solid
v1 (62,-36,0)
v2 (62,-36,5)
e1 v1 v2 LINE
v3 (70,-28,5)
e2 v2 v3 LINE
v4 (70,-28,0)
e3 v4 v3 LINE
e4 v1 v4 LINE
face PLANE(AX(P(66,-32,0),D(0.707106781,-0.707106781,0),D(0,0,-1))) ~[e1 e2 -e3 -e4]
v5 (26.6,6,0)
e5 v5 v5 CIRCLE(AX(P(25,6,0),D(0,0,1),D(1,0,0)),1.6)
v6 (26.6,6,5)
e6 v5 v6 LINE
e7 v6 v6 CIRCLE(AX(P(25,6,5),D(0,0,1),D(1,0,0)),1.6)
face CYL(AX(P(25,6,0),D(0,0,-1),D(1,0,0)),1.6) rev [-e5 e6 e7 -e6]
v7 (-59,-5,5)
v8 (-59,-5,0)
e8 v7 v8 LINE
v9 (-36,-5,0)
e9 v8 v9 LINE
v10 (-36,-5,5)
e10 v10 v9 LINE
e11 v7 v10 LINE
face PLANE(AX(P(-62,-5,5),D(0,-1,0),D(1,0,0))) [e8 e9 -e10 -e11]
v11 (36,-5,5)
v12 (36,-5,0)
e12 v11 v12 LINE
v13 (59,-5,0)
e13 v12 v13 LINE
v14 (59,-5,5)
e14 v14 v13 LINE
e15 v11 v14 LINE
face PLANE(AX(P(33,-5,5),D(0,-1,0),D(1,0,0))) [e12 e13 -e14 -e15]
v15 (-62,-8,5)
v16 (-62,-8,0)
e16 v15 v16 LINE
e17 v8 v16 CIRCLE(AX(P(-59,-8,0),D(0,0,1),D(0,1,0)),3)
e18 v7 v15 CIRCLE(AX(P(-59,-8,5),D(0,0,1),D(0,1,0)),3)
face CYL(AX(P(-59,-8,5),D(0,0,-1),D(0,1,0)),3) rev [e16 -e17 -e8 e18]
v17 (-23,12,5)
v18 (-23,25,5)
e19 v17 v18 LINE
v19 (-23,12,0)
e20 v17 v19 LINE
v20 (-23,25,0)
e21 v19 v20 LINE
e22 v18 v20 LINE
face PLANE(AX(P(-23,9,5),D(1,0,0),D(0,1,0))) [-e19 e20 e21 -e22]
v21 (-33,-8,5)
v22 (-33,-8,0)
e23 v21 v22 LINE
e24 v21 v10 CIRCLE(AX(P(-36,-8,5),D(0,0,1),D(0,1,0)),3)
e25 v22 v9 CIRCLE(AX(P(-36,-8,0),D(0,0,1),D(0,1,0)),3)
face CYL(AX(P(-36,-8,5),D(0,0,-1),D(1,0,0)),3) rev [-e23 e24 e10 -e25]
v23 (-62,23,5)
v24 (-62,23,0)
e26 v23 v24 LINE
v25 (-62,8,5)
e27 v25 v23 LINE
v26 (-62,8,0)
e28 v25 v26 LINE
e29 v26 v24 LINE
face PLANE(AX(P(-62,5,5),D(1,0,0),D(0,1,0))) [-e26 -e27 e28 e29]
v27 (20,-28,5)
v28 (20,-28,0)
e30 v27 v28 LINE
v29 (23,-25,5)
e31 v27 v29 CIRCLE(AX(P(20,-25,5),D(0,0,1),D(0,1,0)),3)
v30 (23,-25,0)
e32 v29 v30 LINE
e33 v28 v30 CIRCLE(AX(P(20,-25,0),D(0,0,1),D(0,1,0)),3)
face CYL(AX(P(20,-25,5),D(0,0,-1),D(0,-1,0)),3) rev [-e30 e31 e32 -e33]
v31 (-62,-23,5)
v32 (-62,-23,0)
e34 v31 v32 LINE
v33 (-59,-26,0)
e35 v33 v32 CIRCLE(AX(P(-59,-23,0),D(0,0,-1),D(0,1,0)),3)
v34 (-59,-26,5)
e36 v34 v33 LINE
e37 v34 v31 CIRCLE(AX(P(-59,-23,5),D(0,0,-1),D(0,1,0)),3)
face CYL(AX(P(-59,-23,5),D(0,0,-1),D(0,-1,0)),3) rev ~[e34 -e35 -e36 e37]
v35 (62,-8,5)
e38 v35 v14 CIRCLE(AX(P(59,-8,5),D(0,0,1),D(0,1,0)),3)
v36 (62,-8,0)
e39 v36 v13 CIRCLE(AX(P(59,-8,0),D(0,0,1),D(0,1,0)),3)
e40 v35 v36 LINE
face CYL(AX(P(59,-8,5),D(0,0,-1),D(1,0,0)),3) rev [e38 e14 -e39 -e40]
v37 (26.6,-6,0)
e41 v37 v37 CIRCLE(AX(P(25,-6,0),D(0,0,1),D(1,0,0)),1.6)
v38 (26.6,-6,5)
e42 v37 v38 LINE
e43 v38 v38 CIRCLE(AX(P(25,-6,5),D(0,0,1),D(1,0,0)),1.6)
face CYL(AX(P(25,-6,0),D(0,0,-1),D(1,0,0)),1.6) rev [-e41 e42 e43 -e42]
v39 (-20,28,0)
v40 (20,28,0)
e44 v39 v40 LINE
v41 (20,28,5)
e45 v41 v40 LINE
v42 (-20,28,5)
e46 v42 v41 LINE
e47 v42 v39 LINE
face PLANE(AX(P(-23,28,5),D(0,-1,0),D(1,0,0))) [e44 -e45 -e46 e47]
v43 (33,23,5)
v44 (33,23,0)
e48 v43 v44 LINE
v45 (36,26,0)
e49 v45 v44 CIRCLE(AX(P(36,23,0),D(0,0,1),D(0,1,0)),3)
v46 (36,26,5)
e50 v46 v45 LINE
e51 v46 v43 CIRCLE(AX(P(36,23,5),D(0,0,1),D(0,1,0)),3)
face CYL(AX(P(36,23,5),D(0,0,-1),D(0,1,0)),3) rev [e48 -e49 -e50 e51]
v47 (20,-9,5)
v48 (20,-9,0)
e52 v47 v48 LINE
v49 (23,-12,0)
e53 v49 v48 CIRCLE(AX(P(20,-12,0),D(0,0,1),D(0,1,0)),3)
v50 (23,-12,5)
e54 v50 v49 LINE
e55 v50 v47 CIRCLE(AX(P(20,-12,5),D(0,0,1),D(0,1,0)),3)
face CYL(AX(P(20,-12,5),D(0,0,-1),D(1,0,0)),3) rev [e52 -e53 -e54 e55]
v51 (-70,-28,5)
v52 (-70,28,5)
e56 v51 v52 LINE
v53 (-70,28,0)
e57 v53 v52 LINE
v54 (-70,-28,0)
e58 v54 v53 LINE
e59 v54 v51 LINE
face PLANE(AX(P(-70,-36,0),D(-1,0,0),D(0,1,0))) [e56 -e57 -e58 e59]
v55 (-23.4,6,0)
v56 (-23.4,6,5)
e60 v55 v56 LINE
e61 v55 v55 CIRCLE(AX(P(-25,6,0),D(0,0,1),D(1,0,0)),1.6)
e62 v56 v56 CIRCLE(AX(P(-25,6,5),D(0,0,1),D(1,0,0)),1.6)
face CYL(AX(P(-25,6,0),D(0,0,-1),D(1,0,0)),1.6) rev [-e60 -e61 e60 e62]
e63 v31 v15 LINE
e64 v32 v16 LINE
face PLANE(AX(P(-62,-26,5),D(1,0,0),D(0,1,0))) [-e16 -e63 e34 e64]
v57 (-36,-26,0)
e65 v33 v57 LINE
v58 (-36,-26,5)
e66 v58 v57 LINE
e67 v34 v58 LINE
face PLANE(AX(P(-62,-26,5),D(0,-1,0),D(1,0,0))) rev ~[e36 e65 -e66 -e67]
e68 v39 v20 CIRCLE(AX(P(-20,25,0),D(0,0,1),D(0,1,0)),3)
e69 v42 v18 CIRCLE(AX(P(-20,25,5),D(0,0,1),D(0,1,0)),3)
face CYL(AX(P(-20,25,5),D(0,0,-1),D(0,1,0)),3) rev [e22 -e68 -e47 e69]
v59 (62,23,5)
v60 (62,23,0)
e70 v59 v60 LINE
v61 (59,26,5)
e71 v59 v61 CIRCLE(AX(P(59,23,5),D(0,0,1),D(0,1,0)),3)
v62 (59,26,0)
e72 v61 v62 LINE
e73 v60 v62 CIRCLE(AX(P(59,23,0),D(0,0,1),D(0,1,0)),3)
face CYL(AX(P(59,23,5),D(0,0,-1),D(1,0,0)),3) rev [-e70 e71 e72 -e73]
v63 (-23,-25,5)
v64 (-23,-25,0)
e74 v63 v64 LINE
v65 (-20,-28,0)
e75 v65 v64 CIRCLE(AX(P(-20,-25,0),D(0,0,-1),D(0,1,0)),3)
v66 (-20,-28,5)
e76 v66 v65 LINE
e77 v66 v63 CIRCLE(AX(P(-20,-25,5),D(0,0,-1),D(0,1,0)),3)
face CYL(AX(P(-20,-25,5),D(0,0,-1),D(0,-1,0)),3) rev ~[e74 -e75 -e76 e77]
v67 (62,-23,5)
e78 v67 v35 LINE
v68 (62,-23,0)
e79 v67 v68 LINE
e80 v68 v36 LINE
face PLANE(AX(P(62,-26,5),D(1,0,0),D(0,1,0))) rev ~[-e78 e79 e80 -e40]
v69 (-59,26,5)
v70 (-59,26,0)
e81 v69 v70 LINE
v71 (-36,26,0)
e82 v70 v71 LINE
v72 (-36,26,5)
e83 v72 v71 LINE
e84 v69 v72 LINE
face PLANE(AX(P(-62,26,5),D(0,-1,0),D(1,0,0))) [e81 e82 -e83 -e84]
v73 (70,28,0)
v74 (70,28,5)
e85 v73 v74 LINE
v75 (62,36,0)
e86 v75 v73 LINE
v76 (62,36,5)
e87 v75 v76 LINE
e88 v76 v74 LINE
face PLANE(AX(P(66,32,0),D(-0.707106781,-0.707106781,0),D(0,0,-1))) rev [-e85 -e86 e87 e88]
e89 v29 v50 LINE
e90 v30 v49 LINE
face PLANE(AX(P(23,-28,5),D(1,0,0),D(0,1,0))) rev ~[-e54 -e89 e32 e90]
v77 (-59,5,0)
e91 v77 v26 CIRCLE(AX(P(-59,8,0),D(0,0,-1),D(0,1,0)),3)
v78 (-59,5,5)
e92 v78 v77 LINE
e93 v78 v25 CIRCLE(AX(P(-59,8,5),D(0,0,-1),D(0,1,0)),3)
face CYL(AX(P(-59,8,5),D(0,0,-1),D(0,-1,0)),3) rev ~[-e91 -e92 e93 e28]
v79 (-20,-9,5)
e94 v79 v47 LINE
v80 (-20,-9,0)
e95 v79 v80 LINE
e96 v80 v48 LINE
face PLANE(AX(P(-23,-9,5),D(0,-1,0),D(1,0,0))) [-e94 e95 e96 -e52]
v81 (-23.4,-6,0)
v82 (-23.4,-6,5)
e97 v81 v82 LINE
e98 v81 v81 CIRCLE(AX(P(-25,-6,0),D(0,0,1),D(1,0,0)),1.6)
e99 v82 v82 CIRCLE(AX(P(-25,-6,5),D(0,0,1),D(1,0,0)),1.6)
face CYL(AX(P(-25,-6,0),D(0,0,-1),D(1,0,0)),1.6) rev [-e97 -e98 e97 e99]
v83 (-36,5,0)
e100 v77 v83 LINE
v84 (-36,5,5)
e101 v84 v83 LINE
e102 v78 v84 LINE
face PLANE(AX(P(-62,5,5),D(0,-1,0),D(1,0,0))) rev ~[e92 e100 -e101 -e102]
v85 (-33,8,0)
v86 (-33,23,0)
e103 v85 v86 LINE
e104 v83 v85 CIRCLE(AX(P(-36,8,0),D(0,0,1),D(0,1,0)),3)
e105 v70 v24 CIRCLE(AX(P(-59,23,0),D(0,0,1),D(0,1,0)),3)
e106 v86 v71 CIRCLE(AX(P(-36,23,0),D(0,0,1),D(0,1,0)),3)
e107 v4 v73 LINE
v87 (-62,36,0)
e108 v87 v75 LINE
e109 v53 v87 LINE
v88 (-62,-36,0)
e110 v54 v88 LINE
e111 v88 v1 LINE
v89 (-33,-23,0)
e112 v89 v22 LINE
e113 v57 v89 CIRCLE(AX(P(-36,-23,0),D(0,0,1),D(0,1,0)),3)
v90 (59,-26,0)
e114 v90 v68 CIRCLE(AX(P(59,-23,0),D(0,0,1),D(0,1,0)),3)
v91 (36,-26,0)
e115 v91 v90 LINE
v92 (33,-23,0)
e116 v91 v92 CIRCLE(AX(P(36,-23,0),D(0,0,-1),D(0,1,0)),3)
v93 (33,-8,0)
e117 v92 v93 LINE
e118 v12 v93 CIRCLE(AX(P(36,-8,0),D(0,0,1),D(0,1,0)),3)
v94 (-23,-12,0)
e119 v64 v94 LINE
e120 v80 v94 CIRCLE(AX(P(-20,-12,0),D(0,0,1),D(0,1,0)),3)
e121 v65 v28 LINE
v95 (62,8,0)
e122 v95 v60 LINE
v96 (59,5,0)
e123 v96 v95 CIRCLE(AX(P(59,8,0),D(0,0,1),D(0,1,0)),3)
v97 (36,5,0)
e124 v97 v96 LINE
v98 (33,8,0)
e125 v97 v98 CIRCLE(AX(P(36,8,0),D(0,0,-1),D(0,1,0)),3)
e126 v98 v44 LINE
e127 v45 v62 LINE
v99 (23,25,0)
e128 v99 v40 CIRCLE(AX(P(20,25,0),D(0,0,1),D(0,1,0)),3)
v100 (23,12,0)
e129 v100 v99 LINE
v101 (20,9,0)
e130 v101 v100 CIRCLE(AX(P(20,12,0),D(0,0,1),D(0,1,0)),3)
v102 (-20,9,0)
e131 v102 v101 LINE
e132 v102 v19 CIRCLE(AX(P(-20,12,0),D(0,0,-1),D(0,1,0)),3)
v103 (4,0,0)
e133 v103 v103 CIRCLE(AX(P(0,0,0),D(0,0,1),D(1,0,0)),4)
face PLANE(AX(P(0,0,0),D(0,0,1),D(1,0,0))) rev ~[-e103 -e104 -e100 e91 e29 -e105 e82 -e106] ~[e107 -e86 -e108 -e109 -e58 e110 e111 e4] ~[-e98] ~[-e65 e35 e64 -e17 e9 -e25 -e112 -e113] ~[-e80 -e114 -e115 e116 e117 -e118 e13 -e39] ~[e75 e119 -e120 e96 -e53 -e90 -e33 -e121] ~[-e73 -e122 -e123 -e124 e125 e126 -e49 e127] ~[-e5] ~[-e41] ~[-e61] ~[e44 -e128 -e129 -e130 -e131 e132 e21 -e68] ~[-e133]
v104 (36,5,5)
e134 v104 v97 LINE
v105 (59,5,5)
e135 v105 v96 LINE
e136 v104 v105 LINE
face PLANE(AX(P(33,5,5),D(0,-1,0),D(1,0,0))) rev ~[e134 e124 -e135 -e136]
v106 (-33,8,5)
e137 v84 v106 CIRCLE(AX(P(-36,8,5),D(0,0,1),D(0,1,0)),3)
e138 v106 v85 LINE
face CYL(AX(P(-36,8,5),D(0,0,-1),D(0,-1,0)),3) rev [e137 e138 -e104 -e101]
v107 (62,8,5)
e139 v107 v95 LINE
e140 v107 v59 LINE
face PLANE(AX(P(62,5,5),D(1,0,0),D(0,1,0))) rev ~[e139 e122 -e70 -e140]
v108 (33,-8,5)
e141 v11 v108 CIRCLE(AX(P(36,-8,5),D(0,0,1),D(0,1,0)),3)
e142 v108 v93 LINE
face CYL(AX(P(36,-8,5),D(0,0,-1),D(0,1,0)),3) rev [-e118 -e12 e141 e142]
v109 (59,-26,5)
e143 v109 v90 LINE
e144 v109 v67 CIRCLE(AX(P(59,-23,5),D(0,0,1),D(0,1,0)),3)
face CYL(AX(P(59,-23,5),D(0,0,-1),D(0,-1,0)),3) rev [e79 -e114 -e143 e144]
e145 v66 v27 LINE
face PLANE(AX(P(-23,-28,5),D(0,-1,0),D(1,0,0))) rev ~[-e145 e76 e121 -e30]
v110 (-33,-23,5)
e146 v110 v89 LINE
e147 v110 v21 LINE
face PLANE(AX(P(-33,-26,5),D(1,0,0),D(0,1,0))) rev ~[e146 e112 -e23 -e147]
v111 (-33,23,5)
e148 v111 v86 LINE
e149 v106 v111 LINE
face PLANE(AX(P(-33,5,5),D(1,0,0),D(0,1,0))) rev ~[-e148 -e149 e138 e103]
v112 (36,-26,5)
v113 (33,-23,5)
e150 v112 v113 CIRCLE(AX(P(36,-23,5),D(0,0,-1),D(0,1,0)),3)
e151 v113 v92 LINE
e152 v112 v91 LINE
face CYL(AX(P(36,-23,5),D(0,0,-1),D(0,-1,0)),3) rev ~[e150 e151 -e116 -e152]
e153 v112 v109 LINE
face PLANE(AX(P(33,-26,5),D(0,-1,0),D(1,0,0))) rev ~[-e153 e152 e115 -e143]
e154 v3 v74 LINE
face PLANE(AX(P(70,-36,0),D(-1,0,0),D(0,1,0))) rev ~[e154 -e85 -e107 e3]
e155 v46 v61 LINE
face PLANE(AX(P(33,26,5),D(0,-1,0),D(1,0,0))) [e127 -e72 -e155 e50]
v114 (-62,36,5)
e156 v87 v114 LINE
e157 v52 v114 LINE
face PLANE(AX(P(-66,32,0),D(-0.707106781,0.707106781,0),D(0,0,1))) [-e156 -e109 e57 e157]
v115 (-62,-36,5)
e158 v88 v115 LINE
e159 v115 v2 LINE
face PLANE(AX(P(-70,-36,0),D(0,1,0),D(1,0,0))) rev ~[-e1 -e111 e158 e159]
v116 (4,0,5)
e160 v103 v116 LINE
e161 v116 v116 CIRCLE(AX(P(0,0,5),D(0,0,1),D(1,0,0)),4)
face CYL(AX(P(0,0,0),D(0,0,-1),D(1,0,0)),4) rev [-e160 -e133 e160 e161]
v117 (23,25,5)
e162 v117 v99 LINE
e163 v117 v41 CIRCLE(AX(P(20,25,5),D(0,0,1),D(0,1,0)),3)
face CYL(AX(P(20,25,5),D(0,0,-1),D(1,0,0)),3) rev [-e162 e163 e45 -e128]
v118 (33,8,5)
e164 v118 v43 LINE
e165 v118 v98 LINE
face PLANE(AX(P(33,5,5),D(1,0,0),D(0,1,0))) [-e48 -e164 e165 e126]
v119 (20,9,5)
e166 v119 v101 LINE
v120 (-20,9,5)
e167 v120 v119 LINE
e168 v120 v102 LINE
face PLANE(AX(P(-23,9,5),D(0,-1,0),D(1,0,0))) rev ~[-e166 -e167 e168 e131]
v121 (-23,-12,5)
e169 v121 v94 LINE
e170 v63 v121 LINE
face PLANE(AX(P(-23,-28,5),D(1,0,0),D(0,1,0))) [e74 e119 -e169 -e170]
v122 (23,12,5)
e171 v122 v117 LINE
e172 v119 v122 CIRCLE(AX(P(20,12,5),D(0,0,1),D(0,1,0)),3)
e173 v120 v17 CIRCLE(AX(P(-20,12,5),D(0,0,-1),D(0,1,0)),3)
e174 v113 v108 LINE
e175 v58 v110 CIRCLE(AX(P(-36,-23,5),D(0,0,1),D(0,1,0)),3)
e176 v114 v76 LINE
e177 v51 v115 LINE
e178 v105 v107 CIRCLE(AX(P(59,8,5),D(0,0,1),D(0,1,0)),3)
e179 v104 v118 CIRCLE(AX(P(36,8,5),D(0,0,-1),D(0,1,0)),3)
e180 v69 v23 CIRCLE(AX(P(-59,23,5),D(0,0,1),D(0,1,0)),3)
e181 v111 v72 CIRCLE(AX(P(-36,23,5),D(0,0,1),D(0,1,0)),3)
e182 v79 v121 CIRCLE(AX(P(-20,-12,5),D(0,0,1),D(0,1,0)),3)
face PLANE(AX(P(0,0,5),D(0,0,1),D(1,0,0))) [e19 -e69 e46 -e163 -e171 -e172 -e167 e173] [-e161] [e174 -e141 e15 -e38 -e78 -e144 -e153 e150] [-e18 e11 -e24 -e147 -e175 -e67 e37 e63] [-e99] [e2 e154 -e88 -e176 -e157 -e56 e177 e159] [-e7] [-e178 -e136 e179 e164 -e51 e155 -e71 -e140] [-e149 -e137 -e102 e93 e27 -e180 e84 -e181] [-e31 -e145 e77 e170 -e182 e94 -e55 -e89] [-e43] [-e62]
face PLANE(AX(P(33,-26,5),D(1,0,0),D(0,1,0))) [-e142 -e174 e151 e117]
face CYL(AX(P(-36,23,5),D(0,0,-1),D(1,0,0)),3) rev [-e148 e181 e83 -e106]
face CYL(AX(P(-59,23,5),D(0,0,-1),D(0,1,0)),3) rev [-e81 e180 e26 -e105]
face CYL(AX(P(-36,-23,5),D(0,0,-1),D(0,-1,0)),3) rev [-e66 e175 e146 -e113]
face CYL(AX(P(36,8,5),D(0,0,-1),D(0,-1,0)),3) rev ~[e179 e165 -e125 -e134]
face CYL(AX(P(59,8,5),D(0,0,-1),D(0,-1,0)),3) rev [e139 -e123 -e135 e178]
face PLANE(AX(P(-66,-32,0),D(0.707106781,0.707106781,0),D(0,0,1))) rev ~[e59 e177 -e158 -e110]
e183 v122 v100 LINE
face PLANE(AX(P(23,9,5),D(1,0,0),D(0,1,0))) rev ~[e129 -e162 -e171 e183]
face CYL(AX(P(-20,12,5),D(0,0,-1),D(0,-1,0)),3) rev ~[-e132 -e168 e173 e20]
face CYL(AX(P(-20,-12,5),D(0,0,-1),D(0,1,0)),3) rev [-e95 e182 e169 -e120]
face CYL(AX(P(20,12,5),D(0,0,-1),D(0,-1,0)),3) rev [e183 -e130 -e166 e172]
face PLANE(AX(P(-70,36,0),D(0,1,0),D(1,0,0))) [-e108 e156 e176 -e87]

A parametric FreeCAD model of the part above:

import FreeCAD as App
import Part
import Sketcher
Q = App.Units.Quantity


def edges_at(feature, points):
    """Names of the edges that pass closest to the given points."""
    edges = feature.Shape.Edges
    near = lambda p: min(range(len(edges)), key=lambda i: edges[i].distToShape(Part.Vertex(*p))[0])
    return sorted({f"Edge{near(p) + 1}" for p in points})


def add_polygon(sketch, points):
    """Adds a closed chain of lines whose ends are joined by coincident constraints."""
    first, n = sketch.GeometryCount, len(points)
    for a, b in zip(points, points[1:] + points[:1]):
        sketch.addGeometry(Part.LineSegment(App.Vector(*a, 0), App.Vector(*b, 0)), False)
    for i in range(n):
        sketch.addConstraint(Sketcher.Constraint("Coincident", first + i, 2, first + (i + 1) % n, 1))

doc = App.newDocument("Part")
body = doc.addObject("PartDesign::Body", "Body")

sketch1 = body.newObject("Sketcher::SketchObject", "Sketch")
sketch1.AttachmentSupport = (doc.getObject("XY_Plane"), [""])
sketch1.MapMode = "FlatFace"
add_polygon(sketch1, [(-70, 36), (-70, -36), (70, -36), (70, 36)])
sketch1.addGeometry(Part.Circle(App.Vector(-25, -6, 0), App.Vector(0, 0, 1), 1.6), False)
sketch1.addGeometry(Part.Circle(App.Vector(25, -6, 0), App.Vector(0, 0, 1), 1.6), False)
sketch1.addGeometry(Part.Circle(App.Vector(0, 0, 0), App.Vector(0, 0, 1), 4), False)
sketch1.addGeometry(Part.Circle(App.Vector(-25, 6, 0), App.Vector(0, 0, 1), 1.6), False)
sketch1.addGeometry(Part.Circle(App.Vector(25, 6, 0), App.Vector(0, 0, 1), 1.6), False)
sketch1.addConstraint([
    Sketcher.Constraint("Vertical", 0),
    Sketcher.Constraint("Horizontal", 1),
    Sketcher.Constraint("Vertical", 2),
    Sketcher.Constraint("Horizontal", 3),
    Sketcher.Constraint("Coincident", 6, 3, -1, 1),
    Sketcher.Constraint("Equal", 4, 5),
    Sketcher.Constraint("Equal", 5, 7),
    Sketcher.Constraint("Equal", 7, 8),
    Sketcher.Constraint("Symmetric", 5, 3, 7, 3, -1, 1),
    Sketcher.Constraint("Symmetric", 4, 3, 8, 3, -1, 1),
    Sketcher.Constraint("Symmetric", 0, 2, 2, 2, -1, 1),
    Sketcher.Constraint("Symmetric", 4, 3, 5, 3, -2),
    Sketcher.Constraint("Diameter", 6, Q("8 mm")),
    Sketcher.Constraint("Diameter", 4, Q("3.2 mm")),
    Sketcher.Constraint("DistanceX", 1, 1, 1, 2, Q("140 mm")),
    Sketcher.Constraint("DistanceY", 0, 2, 0, 1, Q("72 mm")),
    Sketcher.Constraint("DistanceX", 4, 3, -1, 1, Q("25 mm")),
    Sketcher.Constraint("DistanceY", 4, 3, -1, 1, Q("6 mm")),
])
pad1 = body.newObject("PartDesign::Pad", "Pad")
pad1.Profile = sketch1
pad1.Length = 5

sketch2 = body.newObject("Sketcher::SketchObject", "Sketch001")
sketch2.AttachmentSupport = (doc.getObject("XY_Plane"), [""])
sketch2.MapMode = "FlatFace"
sketch2.AttachmentOffset = App.Placement(App.Vector(0, 0, 5), App.Rotation())
add_polygon(sketch2, [(-62, 26), (-62, 5), (-33, 5), (-33, 26)])
add_polygon(sketch2, [(-62, -5), (-62, -26), (-33, -26), (-33, -5)])
add_polygon(sketch2, [(33, -5), (33, -26), (62, -26), (62, -5)])
add_polygon(sketch2, [(33, 26), (33, 5), (62, 5), (62, 26)])
add_polygon(sketch2, [(-23, 28), (-23, 9), (23, 9), (23, 28)])
add_polygon(sketch2, [(-23, -9), (-23, -28), (23, -28), (23, -9)])
sketch2.addConstraint([
    Sketcher.Constraint("Vertical", 0),
    Sketcher.Constraint("Horizontal", 1),
    Sketcher.Constraint("Vertical", 2),
    Sketcher.Constraint("Horizontal", 3),
    Sketcher.Constraint("Vertical", 4),
    Sketcher.Constraint("Horizontal", 5),
    Sketcher.Constraint("Vertical", 6),
    Sketcher.Constraint("Horizontal", 7),
    Sketcher.Constraint("Vertical", 8),
    Sketcher.Constraint("Horizontal", 9),
    Sketcher.Constraint("Vertical", 10),
    Sketcher.Constraint("Horizontal", 11),
    Sketcher.Constraint("Vertical", 12),
    Sketcher.Constraint("Horizontal", 13),
    Sketcher.Constraint("Vertical", 14),
    Sketcher.Constraint("Horizontal", 15),
    Sketcher.Constraint("Vertical", 16),
    Sketcher.Constraint("Horizontal", 17),
    Sketcher.Constraint("Vertical", 18),
    Sketcher.Constraint("Horizontal", 19),
    Sketcher.Constraint("Vertical", 20),
    Sketcher.Constraint("Horizontal", 21),
    Sketcher.Constraint("Vertical", 22),
    Sketcher.Constraint("Horizontal", 23),
    Sketcher.Constraint("Symmetric", 2, 2, 8, 2, -1, 1),
    Sketcher.Constraint("Symmetric", 0, 2, 10, 2, -1, 1),
    Sketcher.Constraint("Symmetric", 6, 2, 12, 2, -1, 1),
    Sketcher.Constraint("Symmetric", 4, 2, 14, 2, -1, 1),
    Sketcher.Constraint("Symmetric", 18, 2, 20, 2, -1, 1),
    Sketcher.Constraint("Symmetric", 16, 2, 22, 2, -1, 1),
    Sketcher.Constraint("Symmetric", 5, 2, 8, 2, -2),
    Sketcher.Constraint("Symmetric", 7, 2, 10, 2, -2),
    Sketcher.Constraint("Vertical", 19, 2, 20, 2),
    Sketcher.Constraint("DistanceX", 1, 1, 1, 2, Q("29 mm")),
    Sketcher.Constraint("DistanceX", 17, 1, 17, 2, Q("46 mm")),
    Sketcher.Constraint("DistanceY", 0, 2, 0, 1, Q("21 mm")),
    Sketcher.Constraint("DistanceY", 16, 2, 16, 1, Q("19 mm")),
    Sketcher.Constraint("DistanceX", 0, 2, -1, 1, Q("62 mm")),
    Sketcher.Constraint("DistanceY", -1, 1, 0, 2, Q("5 mm")),
    Sketcher.Constraint("DistanceY", -1, 1, 16, 2, Q("9 mm")),
])
pocket1 = body.newObject("PartDesign::Pocket", "Pocket")
pocket1.Profile = sketch2
pocket1.Type = "ThroughAll"
doc.recompute()

fillet = body.newObject("PartDesign::Fillet", "Fillet")
fillet.Base = (pocket1, edges_at(pocket1, [
    (-62, -26, 2.5),
    (-62, -5, 2.5),
    (-33, -5, 2.5),
    (-33, -26, 2.5),
    (23, 28, 2.5),
    (23, 9, 2.5),
    (-23, 9, 2.5),
    (-23, 28, 2.5),
    (62, -5, 2.5),
    (62, -26, 2.5),
    (33, -26, 2.5),
    (33, -5, 2.5),
    (62, 26, 2.5),
    (62, 5, 2.5),
    (33, 5, 2.5),
    (33, 26, 2.5),
    (23, -9, 2.5),
    (23, -28, 2.5),
    (-23, -28, 2.5),
    (-23, -9, 2.5),
    (-62, 5, 2.5),
    (-62, 26, 2.5),
    (-33, 26, 2.5),
    (-33, 5, 2.5),
]))
fillet.Radius = 3
doc.recompute()

chamfer = body.newObject("PartDesign::Chamfer", "Chamfer")
chamfer.Base = (fillet, edges_at(fillet, [
    (-70, 36, 2.5),
    (70, 36, 2.5),
    (70, -36, 2.5),
    (-70, -36, 2.5),
]))
chamfer.Size = 8

doc.recompute()
